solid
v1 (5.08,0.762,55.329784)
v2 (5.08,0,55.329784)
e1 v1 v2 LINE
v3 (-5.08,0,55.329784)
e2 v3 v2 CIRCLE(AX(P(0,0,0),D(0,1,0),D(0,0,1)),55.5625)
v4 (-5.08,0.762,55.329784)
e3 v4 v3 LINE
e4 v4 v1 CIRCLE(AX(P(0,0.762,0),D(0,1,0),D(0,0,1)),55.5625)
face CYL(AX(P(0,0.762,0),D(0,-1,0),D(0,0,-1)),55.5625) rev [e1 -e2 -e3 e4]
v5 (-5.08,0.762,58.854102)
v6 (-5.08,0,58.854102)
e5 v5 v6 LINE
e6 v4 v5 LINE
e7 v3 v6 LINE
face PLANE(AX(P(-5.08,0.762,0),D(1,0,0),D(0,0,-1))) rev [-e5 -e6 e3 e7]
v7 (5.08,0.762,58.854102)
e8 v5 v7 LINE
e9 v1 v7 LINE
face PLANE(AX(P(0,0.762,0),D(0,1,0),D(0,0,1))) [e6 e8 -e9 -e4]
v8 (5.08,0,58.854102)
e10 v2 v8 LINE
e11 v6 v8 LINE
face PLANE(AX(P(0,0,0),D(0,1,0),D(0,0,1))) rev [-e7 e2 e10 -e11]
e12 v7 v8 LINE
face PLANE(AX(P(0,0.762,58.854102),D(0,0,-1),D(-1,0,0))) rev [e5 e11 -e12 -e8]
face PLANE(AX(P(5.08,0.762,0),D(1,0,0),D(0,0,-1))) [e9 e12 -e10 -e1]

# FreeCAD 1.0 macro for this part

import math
import FreeCAD as App
import Part
import Sketcher
Q = App.Units.Quantity

doc = App.newDocument("Part")
body = doc.addObject("PartDesign::Body", "Body")

# Sketch on XZ plane
sketch1 = doc.addObject("Sketcher::SketchObject", "Sketch")
body.addObject(sketch1)
sketch1.AttachmentSupport = (doc.XZ_Plane, [""])
sketch1.MapMode = "FlatFace"
sketch1.addGeometry([
    Part.ArcOfCircle(Part.Circle(App.Vector(0, 0, 0), App.Vector(0, 0, 1), 55.5625), math.radians(84.754203), math.radians(95.245797)),
    Part.LineSegment(App.Vector(-5.08, 55.329784, 0), App.Vector(-5.08, 58.854102, 0)),
    Part.LineSegment(App.Vector(-5.08, 58.854102, 0), App.Vector(5.08, 58.854102, 0)),
    Part.LineSegment(App.Vector(5.08, 58.854102, 0), App.Vector(5.08, 55.329784, 0)),
], False)
sketch1.addConstraint([
    Sketcher.Constraint("Coincident", 0, 2, 1, 1),
    Sketcher.Constraint("Coincident", 1, 2, 2, 1),
    Sketcher.Constraint("Coincident", 2, 2, 3, 1),
    Sketcher.Constraint("Coincident", 3, 2, 0, 1),
    Sketcher.Constraint("Vertical", 1),
    Sketcher.Constraint("Horizontal", 2),
    Sketcher.Constraint("Vertical", 3),
    Sketcher.Constraint("Coincident", 0, 3, -1, 1),
    Sketcher.Constraint("Horizontal", 0, 2, 3, 2),
    Sketcher.Constraint("DistanceX", 2, 1, 2, 2, Q("0.4 in")),
    Sketcher.Constraint("Radius", 0, Q("2.1875 in")),
    Sketcher.Constraint("DistanceY", -1, 1, 1, 2, 58.854102),
])
pad1 = doc.addObject("PartDesign::Pad", "Pad")
body.addObject(pad1)
pad1.Profile = sketch1
pad1.Length = Q("0.03 in")
pad1.Reversed = True

doc.recompute()
